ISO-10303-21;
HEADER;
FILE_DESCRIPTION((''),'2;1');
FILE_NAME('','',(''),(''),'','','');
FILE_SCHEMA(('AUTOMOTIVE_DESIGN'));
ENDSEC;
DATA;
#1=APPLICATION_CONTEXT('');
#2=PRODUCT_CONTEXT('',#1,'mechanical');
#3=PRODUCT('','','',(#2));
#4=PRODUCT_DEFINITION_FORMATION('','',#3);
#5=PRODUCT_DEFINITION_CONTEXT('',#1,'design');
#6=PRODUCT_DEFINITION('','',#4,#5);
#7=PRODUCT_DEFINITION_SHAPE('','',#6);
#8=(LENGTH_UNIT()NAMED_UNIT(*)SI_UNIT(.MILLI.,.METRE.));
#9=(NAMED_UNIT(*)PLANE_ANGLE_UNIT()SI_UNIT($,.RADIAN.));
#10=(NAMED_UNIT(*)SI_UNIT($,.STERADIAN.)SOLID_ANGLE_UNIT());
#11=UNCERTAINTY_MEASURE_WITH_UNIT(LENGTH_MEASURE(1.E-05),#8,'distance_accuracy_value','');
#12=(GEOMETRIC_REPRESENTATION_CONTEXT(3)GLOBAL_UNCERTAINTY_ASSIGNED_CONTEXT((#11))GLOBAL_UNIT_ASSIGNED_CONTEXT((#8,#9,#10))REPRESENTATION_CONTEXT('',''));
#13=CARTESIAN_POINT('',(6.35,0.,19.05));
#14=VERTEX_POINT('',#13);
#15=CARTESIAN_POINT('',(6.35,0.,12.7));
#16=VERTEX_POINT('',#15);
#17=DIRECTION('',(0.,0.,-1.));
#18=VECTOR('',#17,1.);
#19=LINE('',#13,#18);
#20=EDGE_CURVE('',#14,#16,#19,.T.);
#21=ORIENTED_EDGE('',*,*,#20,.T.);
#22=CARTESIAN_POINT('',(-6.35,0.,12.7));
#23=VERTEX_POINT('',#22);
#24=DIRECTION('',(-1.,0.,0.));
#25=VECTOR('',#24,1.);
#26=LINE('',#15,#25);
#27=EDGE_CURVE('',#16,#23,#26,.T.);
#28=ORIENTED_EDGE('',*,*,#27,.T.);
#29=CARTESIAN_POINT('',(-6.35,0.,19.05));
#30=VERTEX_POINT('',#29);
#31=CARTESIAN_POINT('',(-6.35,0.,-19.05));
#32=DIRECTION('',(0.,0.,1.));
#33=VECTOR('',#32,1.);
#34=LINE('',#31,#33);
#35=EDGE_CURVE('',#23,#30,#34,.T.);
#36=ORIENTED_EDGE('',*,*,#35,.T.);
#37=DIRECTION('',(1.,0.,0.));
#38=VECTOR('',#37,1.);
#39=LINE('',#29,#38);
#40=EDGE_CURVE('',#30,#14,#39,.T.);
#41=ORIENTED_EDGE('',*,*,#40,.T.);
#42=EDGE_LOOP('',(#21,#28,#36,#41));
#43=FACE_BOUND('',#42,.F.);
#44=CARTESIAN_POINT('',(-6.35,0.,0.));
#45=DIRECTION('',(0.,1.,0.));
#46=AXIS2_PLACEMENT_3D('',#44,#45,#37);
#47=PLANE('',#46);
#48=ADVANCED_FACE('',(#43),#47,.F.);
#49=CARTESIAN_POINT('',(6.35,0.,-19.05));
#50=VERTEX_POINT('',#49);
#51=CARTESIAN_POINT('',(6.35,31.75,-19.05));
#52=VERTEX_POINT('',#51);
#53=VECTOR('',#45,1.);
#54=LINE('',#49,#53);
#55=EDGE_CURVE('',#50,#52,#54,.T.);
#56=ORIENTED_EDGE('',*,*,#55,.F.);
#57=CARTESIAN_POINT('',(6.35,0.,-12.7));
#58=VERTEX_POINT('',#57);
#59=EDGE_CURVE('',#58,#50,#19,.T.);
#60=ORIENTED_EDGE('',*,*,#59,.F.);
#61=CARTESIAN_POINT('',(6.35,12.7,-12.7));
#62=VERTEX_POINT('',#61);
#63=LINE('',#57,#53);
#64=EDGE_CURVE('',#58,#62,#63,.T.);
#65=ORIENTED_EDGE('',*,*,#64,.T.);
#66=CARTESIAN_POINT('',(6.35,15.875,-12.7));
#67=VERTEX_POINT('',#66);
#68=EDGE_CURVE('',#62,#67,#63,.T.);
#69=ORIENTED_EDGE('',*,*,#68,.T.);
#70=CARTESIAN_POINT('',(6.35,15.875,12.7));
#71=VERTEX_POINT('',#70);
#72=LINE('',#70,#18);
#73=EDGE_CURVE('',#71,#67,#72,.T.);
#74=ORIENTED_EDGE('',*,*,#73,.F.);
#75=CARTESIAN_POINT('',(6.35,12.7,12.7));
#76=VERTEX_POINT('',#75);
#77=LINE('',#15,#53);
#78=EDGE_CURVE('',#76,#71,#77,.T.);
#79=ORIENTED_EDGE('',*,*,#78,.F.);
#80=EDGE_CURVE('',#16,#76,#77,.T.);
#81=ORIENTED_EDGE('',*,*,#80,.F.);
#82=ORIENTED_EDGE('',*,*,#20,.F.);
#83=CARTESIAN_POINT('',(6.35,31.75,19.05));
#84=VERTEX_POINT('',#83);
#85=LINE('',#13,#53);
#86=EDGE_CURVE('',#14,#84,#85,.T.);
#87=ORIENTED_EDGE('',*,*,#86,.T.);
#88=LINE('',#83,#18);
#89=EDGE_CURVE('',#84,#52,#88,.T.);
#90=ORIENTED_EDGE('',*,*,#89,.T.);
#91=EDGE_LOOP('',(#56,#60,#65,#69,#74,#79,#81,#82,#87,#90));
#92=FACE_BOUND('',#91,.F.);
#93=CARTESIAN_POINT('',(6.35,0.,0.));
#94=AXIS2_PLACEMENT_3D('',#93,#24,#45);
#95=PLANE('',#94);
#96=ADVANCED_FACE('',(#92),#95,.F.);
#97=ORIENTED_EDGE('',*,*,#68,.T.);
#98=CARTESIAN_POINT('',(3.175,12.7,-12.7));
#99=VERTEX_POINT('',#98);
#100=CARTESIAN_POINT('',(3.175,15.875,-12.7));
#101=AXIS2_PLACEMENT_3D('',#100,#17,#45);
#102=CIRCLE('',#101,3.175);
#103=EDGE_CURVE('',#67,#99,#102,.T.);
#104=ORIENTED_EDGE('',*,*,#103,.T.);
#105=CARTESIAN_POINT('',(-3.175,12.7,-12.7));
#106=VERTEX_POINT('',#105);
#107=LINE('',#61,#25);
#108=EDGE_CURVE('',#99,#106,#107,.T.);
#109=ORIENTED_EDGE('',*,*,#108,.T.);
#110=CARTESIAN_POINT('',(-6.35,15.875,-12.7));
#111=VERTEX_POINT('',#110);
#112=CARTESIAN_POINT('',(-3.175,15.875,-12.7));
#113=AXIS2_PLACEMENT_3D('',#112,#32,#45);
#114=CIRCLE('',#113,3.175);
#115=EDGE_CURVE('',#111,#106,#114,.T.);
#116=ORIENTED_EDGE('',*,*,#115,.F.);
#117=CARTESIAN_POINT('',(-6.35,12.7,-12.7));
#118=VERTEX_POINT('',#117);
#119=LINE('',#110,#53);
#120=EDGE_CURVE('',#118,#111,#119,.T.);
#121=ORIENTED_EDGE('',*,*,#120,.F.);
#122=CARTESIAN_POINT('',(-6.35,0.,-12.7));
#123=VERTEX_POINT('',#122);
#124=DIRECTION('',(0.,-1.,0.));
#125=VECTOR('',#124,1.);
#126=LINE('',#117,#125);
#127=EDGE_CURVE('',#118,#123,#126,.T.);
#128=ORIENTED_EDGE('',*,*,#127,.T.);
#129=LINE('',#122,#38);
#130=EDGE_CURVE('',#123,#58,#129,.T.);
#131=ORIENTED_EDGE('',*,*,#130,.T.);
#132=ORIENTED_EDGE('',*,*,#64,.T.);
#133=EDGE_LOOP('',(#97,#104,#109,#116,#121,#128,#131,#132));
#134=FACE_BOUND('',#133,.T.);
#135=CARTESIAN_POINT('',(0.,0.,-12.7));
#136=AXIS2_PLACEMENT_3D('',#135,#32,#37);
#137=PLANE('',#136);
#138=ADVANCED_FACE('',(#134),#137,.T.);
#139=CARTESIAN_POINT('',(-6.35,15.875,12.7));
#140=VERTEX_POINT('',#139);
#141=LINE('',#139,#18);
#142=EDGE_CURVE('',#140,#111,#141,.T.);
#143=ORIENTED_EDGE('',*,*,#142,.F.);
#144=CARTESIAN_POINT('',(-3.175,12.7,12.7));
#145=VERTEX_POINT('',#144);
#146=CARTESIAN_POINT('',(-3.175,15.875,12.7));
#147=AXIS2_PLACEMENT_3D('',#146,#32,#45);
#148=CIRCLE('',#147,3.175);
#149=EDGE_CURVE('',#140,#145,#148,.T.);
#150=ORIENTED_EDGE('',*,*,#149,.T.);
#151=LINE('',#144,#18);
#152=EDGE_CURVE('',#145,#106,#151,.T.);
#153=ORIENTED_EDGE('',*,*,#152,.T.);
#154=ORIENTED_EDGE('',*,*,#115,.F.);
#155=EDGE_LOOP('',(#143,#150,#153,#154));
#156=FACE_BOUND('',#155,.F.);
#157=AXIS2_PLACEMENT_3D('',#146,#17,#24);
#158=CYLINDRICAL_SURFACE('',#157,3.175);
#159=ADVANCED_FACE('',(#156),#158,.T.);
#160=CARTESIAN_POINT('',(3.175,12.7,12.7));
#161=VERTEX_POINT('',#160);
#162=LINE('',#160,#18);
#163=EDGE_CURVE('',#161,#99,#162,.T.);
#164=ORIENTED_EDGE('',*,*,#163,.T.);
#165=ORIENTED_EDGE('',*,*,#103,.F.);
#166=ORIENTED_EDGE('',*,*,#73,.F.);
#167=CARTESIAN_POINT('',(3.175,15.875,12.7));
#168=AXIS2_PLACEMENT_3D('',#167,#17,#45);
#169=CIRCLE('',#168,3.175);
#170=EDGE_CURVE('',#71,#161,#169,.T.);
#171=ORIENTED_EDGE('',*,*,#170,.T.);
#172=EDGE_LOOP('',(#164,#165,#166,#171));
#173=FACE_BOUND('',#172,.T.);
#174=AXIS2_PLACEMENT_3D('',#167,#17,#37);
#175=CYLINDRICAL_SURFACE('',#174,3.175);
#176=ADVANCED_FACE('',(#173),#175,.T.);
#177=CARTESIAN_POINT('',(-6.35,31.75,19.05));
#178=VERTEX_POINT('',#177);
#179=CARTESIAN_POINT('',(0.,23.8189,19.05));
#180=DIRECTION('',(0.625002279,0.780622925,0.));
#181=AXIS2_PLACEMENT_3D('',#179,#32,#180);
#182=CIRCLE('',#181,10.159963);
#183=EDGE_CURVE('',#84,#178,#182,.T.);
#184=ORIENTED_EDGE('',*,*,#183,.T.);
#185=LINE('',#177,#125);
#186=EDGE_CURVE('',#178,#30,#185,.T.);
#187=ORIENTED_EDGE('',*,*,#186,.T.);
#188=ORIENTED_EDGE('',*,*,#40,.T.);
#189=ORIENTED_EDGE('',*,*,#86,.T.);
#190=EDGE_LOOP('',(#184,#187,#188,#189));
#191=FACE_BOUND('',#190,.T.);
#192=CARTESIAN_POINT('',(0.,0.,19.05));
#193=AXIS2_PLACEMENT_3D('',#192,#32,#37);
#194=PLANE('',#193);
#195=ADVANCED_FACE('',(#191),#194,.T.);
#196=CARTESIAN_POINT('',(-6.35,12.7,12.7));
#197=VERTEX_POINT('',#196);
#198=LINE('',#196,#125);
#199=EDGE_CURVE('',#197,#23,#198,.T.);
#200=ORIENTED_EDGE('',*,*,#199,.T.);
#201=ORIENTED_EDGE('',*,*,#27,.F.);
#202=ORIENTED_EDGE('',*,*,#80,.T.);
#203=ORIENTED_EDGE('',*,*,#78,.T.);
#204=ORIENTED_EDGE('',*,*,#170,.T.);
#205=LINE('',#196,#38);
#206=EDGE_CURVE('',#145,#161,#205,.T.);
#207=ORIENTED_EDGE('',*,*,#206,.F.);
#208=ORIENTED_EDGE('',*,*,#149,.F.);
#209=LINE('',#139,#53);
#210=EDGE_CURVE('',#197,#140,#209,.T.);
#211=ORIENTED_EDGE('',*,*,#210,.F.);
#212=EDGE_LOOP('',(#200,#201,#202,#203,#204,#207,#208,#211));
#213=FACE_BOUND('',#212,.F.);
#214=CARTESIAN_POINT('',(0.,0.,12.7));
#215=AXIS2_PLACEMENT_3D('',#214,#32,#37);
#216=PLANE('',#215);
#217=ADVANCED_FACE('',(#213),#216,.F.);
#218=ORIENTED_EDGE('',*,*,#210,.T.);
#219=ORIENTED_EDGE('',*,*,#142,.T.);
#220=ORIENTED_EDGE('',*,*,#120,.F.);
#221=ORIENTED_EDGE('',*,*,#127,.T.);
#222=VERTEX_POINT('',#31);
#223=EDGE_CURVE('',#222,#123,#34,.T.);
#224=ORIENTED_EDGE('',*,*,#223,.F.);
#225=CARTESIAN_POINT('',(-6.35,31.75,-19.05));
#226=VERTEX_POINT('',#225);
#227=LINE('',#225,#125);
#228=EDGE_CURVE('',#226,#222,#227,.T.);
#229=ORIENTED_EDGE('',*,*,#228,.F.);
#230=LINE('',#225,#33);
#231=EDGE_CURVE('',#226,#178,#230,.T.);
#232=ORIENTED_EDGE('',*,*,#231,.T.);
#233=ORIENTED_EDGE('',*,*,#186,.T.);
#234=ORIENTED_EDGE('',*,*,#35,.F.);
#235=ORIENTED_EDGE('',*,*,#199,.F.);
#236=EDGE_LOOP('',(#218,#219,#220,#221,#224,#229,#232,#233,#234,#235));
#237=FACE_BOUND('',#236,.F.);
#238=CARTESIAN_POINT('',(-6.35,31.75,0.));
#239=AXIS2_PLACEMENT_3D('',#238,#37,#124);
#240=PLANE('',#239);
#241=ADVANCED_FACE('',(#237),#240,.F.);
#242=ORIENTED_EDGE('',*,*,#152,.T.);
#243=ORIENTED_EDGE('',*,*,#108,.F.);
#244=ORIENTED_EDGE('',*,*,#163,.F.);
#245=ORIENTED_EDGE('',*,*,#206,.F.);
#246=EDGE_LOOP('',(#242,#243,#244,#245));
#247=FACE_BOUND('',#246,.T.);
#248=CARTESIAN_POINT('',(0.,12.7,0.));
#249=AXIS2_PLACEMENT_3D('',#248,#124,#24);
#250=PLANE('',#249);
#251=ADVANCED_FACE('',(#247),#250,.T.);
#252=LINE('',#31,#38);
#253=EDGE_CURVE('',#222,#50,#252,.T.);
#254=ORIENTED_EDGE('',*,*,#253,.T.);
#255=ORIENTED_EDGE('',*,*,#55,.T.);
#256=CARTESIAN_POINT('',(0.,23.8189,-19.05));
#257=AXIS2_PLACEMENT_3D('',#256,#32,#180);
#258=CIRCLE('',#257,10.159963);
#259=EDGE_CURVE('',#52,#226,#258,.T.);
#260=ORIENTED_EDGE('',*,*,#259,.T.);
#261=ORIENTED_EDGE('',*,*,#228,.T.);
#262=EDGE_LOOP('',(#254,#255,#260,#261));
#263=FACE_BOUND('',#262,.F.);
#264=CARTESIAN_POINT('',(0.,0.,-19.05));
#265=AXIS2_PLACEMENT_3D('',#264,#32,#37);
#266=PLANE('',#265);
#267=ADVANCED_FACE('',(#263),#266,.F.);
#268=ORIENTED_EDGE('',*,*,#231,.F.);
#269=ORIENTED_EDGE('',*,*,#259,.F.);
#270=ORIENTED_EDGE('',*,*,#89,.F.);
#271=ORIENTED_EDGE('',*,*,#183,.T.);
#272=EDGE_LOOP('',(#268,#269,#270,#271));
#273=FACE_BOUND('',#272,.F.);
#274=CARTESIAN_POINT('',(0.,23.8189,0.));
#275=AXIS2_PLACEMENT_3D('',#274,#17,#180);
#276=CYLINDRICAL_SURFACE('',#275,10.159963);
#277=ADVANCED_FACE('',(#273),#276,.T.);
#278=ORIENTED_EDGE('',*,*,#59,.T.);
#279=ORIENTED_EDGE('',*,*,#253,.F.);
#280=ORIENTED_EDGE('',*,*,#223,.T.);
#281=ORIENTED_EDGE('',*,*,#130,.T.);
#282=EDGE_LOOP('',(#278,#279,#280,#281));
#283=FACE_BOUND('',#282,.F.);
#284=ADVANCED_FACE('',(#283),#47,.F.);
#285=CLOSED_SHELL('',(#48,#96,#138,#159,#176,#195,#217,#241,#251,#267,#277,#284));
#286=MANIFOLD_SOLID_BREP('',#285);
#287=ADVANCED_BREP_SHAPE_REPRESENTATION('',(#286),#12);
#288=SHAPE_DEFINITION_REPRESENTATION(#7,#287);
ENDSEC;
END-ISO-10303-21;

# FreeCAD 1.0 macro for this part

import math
import FreeCAD as App
import Part
import Sketcher
Q = App.Units.Quantity


def edges_at(feature, points):
    """Names of the edges that pass closest to the given points."""
    edges = feature.Shape.Edges
    near = lambda p: min(range(len(edges)), key=lambda i: edges[i].distToShape(Part.Vertex(*p))[0])
    return sorted({f"Edge{near(p) + 1}" for p in points})


def add_polygon(sketch, points):
    """Adds a closed chain of lines whose ends are joined by coincident constraints."""
    first, n = sketch.GeometryCount, len(points)
    for a, b in zip(points, points[1:] + points[:1]):
        sketch.addGeometry(Part.LineSegment(App.Vector(*a, 0), App.Vector(*b, 0)), False)
    for i in range(n):
        sketch.addConstraint(Sketcher.Constraint("Coincident", first + i, 2, first + (i + 1) % n, 1))

doc = App.newDocument("Part")
body = doc.addObject("PartDesign::Body", "Body")

# Sketch on XY plane
sketch1 = body.newObject("Sketcher::SketchObject", "Sketch")
sketch1.AttachmentSupport = (doc.getObject("XY_Plane"), [""])
sketch1.MapMode = "FlatFace"
sketch1.addGeometry([
    Part.ArcOfCircle(Part.Circle(App.Vector(0, 23.8189, 0), App.Vector(0, 0, 1), 10.159963), math.radians(51.317645), math.radians(128.682355)),
    Part.LineSegment(App.Vector(-6.35, 31.75, 0), App.Vector(-6.35, 0, 0)),
    Part.LineSegment(App.Vector(-6.35, 0, 0), App.Vector(6.35, 0, 0)),
    Part.LineSegment(App.Vector(6.35, 0, 0), App.Vector(6.35, 31.75, 0)),
], False)
sketch1.addConstraint([
    Sketcher.Constraint("Coincident", 0, 2, 1, 1),
    Sketcher.Constraint("Coincident", 1, 2, 2, 1),
    Sketcher.Constraint("Coincident", 2, 2, 3, 1),
    Sketcher.Constraint("Coincident", 3, 2, 0, 1),
    Sketcher.Constraint("Vertical", 1),
    Sketcher.Constraint("Horizontal", 2),
    Sketcher.Constraint("Vertical", 3),
    Sketcher.Constraint("Symmetric", 1, 2, 2, 2, -1, 1),
    Sketcher.Constraint("PointOnObject", 0, 3, -2),
    Sketcher.Constraint("Radius", 0, Q("0.4 in")),
    Sketcher.Constraint("DistanceX", 2, 1, 2, 2, Q("0.5 in")),
    Sketcher.Constraint("DistanceY", 1, 2, 1, 1, Q("1.25 in")),
])
pad1 = body.newObject("PartDesign::Pad", "Pad")
pad1.Profile = sketch1
pad1.Length = Q("1.5 in")
pad1.Midplane = True

# Sketch on XY plane
sketch2 = body.newObject("Sketcher::SketchObject", "Sketch001")
sketch2.AttachmentSupport = (doc.getObject("XY_Plane"), [""])
sketch2.MapMode = "FlatFace"
add_polygon(sketch2, [(-6.35, 12.7), (-6.35, 0), (6.35, 0), (6.35, 12.7)])  # lines 0-3
sketch2.addConstraint([
    Sketcher.Constraint("Vertical", 0),
    Sketcher.Constraint("Horizontal", 1),
    Sketcher.Constraint("Vertical", 2),
    Sketcher.Constraint("Horizontal", 3),
    Sketcher.Constraint("Symmetric", 0, 2, 1, 2, -1, 1),
    Sketcher.Constraint("Equal", 3, 0),
    Sketcher.Constraint("DistanceX", 1, 1, 1, 2, Q("0.5 in")),
])
pocket1 = body.newObject("PartDesign::Pocket", "Pocket")
pocket1.Profile = sketch2
pocket1.Length = Q("1 in")
pocket1.Midplane = True
doc.recompute()

fillet = body.newObject("PartDesign::Fillet", "Fillet")
fillet.Base = (pocket1, edges_at(pocket1, [(-6.35, 12.7, 0), (6.35, 12.7, 0)]))
fillet.Radius = Q("0.125 in")

doc.recompute()
